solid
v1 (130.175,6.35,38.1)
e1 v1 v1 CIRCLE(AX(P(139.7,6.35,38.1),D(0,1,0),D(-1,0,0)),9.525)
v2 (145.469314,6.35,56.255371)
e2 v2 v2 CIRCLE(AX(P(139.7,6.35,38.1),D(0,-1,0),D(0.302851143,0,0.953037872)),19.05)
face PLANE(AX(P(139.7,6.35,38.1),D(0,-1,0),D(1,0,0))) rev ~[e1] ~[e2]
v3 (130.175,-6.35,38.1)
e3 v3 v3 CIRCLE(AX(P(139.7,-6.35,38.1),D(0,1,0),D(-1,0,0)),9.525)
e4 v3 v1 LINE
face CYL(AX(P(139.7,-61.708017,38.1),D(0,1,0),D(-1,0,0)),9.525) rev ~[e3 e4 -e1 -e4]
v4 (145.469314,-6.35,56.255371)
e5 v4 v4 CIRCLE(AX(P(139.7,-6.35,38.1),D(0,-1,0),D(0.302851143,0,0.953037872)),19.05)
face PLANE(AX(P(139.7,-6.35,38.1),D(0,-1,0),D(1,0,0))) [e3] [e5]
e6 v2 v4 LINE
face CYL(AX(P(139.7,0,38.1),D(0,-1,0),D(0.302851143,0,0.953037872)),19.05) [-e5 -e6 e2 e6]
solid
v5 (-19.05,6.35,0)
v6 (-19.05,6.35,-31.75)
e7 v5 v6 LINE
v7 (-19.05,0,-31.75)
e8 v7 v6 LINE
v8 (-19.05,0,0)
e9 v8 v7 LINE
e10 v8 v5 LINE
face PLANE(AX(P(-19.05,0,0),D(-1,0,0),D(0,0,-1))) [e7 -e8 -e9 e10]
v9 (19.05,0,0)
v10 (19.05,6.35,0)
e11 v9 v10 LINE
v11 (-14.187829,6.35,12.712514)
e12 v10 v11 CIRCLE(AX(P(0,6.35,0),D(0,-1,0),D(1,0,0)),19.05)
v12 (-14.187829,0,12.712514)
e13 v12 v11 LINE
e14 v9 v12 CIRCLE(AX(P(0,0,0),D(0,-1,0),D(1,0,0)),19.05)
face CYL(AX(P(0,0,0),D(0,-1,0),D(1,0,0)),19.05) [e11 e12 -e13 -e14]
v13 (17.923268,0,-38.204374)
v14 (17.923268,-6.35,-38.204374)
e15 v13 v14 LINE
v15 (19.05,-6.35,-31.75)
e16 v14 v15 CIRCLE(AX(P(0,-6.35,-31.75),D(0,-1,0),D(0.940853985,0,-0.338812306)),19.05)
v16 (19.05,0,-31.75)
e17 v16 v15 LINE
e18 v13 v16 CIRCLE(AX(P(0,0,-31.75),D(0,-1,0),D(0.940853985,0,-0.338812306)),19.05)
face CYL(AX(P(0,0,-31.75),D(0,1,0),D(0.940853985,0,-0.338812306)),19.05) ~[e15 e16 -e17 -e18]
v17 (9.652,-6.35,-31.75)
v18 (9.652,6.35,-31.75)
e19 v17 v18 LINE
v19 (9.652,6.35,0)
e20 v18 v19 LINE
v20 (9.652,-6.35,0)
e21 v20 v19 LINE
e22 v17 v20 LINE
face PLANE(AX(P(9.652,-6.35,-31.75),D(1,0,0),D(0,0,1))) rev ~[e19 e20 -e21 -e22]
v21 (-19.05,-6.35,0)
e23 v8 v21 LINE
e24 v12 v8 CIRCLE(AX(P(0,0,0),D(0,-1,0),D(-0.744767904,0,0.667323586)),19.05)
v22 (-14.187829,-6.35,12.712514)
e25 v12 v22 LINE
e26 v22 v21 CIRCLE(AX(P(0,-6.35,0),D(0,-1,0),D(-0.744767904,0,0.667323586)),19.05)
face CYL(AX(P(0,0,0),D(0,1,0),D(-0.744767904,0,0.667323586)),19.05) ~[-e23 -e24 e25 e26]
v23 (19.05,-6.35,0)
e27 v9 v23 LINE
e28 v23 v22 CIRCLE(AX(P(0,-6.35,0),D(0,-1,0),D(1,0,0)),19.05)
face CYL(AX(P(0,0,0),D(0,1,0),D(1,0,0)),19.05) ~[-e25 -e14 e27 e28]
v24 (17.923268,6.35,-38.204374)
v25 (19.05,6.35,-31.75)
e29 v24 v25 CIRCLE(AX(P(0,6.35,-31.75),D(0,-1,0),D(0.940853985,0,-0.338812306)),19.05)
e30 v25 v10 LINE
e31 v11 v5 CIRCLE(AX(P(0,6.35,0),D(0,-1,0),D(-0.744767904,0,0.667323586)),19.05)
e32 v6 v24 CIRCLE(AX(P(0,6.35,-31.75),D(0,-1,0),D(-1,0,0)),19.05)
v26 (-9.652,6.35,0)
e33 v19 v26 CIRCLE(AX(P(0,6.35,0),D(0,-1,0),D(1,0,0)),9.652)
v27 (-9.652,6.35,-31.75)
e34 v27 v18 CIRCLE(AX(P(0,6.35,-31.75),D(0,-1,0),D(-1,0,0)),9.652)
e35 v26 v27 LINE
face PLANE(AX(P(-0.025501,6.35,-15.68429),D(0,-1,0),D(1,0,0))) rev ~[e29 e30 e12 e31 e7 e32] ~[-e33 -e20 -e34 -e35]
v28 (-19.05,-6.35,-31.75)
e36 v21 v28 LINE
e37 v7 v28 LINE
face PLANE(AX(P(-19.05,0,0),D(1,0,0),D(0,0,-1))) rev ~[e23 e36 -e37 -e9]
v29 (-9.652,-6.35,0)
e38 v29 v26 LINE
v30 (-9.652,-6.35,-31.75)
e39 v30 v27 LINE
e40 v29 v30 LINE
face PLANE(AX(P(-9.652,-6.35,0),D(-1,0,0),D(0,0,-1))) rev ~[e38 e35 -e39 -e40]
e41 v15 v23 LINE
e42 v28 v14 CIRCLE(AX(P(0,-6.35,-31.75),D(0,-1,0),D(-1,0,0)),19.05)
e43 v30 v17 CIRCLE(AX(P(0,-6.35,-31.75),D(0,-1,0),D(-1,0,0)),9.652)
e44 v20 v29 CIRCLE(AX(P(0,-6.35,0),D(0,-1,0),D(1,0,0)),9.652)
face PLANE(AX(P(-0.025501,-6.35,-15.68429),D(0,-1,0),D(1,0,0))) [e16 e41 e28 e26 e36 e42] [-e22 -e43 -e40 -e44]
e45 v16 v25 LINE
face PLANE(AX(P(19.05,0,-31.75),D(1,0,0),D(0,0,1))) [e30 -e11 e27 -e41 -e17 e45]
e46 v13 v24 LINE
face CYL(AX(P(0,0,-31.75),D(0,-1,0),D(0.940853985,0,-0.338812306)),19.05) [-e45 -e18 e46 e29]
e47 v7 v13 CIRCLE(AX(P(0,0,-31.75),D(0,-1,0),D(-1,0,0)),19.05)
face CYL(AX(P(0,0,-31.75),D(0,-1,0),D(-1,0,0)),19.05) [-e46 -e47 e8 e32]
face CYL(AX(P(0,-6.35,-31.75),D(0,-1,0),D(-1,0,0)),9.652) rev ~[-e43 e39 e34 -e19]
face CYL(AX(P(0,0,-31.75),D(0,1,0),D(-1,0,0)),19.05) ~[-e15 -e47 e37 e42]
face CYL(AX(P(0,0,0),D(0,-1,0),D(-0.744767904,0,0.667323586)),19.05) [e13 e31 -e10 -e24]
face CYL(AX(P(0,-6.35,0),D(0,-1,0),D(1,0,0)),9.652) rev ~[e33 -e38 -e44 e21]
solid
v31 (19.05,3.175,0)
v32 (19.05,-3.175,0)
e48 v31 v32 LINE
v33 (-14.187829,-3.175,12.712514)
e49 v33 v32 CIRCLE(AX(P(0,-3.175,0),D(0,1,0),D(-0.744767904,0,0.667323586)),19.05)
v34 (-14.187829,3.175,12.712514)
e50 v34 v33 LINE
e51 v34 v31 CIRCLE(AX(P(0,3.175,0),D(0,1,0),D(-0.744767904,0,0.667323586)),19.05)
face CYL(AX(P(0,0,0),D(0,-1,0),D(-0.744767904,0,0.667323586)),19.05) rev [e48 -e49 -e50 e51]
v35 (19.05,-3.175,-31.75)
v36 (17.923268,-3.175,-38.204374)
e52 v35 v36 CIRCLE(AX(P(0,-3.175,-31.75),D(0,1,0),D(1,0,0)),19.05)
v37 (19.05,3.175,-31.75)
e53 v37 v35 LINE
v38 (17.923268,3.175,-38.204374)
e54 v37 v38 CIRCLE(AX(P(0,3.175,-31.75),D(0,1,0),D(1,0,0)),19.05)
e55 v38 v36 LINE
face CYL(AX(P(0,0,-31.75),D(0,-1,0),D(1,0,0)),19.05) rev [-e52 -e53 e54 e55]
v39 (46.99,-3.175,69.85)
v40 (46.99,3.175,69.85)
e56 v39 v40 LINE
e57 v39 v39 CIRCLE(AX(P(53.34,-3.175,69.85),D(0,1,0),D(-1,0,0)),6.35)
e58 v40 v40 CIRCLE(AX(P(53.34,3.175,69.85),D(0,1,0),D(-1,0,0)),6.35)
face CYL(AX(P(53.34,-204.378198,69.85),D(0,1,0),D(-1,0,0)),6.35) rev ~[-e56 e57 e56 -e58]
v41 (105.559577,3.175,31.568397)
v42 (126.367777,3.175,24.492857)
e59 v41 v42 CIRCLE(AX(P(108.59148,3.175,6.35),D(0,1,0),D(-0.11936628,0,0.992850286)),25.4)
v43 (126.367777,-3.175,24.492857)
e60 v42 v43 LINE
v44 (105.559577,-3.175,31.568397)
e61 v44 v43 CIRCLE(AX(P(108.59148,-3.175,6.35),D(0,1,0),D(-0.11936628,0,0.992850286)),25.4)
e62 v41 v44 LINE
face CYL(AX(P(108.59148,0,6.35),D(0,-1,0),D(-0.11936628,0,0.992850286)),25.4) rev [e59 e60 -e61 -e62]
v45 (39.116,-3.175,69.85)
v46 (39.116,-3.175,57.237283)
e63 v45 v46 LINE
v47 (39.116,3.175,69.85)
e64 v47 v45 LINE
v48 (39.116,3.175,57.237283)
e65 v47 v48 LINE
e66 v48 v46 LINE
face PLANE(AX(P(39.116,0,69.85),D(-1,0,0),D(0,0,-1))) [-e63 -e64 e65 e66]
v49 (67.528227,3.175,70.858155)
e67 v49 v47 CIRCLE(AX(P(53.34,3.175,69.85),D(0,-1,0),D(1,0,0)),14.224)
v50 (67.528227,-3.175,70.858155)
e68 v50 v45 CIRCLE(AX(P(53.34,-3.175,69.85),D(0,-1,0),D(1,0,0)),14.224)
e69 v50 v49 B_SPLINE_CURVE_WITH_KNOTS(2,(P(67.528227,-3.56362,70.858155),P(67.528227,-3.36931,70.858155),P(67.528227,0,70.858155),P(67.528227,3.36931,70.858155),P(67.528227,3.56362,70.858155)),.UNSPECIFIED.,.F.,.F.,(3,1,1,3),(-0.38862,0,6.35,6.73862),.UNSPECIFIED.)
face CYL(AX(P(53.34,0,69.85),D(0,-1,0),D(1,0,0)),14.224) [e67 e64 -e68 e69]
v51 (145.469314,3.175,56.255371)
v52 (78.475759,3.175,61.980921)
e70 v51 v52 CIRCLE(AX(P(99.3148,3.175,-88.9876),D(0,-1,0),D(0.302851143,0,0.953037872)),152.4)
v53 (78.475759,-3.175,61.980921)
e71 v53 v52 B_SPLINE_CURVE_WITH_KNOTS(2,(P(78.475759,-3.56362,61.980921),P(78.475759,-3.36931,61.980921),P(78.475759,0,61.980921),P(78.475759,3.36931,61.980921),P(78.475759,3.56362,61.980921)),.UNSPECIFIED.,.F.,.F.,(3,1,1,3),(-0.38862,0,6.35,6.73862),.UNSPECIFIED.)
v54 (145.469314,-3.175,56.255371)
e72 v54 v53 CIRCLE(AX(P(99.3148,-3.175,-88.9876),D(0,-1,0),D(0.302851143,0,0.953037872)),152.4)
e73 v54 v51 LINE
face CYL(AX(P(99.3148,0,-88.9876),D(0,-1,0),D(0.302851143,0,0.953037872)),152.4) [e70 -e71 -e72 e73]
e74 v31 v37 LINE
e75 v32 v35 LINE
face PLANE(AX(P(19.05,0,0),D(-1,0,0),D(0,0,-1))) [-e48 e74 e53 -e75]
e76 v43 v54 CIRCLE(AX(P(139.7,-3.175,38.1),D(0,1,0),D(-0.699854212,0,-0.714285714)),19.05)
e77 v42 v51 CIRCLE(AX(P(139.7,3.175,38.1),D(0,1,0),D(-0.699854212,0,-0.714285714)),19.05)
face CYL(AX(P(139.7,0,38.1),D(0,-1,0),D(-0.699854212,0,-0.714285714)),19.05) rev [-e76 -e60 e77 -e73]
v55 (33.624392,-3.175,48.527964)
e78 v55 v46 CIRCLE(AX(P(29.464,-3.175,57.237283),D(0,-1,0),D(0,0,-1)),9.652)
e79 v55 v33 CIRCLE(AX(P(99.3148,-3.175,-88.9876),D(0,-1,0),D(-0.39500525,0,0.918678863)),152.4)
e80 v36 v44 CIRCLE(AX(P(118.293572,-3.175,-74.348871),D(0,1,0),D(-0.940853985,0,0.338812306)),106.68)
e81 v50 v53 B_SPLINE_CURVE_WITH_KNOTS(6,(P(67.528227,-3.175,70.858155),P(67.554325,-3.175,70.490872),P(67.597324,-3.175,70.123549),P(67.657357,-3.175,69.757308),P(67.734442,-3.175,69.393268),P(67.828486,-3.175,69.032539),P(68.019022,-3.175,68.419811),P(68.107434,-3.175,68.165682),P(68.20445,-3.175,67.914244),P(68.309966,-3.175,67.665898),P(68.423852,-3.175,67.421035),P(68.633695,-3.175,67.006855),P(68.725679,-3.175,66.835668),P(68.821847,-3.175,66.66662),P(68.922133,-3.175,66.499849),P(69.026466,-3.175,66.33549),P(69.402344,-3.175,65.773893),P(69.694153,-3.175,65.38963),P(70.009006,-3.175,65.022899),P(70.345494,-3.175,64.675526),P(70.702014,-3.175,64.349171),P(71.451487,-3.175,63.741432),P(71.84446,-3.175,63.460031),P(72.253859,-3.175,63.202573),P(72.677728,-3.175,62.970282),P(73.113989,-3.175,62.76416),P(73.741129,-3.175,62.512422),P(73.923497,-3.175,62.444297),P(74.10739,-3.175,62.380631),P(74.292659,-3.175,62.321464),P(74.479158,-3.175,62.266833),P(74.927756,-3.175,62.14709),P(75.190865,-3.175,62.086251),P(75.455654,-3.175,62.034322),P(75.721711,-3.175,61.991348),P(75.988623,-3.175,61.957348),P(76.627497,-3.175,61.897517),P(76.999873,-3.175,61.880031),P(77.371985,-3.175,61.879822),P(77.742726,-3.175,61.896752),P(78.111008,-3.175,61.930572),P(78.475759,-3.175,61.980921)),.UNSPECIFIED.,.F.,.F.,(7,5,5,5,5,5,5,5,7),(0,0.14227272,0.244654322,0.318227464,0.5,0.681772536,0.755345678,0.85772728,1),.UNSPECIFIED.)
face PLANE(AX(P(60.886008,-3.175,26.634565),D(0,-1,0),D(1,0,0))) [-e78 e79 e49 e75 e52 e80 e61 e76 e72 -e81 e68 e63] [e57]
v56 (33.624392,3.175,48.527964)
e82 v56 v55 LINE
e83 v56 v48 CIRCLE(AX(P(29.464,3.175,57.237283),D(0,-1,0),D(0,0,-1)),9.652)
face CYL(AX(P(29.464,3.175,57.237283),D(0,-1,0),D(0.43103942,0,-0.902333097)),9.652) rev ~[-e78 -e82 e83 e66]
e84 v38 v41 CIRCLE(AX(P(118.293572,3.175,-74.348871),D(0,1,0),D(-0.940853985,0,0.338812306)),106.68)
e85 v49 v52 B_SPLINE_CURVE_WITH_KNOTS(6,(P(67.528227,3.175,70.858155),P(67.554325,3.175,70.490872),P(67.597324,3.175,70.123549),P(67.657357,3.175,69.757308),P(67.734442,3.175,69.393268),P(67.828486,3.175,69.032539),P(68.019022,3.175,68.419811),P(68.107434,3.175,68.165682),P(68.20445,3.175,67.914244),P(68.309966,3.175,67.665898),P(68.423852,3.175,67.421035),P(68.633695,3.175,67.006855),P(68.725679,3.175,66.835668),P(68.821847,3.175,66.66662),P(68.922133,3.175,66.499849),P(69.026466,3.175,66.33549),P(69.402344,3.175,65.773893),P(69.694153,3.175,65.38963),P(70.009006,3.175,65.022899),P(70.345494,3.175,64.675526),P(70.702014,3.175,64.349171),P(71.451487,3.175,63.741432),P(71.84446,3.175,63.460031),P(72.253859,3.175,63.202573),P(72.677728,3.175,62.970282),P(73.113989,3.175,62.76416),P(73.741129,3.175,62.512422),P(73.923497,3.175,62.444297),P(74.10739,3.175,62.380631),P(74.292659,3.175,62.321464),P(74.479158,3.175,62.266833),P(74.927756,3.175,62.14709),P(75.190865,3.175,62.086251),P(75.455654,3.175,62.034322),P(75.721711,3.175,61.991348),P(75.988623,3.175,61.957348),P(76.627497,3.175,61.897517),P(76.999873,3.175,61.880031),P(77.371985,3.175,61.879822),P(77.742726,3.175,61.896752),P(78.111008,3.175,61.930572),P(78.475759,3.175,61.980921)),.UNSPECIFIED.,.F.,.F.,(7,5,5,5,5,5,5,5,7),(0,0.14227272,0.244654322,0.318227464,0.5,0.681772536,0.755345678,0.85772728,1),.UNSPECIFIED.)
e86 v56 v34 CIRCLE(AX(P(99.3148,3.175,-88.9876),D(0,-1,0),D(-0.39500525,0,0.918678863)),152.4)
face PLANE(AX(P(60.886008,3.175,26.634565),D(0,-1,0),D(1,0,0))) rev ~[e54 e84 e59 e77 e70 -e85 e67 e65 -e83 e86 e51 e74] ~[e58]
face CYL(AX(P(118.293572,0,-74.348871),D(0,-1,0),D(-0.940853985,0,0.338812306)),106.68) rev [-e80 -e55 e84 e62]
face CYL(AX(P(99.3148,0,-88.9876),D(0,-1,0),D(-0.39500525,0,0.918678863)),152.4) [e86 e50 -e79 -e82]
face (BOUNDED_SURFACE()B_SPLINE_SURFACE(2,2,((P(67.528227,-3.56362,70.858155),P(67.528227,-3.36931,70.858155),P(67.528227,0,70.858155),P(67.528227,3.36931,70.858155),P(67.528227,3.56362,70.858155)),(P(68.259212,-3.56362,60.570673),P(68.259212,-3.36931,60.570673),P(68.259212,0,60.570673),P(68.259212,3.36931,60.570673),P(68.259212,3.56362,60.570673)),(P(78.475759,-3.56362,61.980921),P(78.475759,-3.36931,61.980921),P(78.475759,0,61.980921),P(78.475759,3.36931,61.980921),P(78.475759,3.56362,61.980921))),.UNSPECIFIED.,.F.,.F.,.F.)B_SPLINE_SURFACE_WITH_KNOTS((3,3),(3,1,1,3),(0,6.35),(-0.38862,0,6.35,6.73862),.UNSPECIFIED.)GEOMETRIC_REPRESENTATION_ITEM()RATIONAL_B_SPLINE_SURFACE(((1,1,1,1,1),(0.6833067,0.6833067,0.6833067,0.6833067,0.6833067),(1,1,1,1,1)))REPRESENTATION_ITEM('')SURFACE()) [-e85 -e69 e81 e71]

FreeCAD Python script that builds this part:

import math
import FreeCAD as App
import Part
import Sketcher
from FreeCAD import Vector
Q = App.Units.Quantity


def edges_at(feature, points):
    """Names of the edges that pass closest to the given points."""
    edges = feature.Shape.Edges
    near = lambda p: min(range(len(edges)), key=lambda i: edges[i].distToShape(Part.Vertex(*p))[0])
    return sorted({f"Edge{near(p) + 1}" for p in points})

doc = App.newDocument("Part")
body = doc.addObject("PartDesign::Body", "Body")

sketch1 = doc.addObject("Sketcher::SketchObject", "Sketch")
body.addObject(sketch1)
sketch1.AttachmentSupport = (doc.XZ_Plane, [""])
sketch1.MapMode = "FlatFace"
sketch1.addGeometry(Part.LineSegment(Vector(19, -32, 0), Vector(19, 0, 0)), False)
sketch1.addGeometry(Part.ArcOfCircle(Part.Circle(Vector(0, 0, 0), Vector(0, 0, 1), 19), math.radians(0), math.radians(138)), False)
sketch1.addGeometry(Part.ArcOfCircle(Part.Circle(Vector(0, 0, 0), Vector(0, 0, 1), 19), math.radians(138), math.radians(180)), False)
sketch1.addGeometry(Part.LineSegment(Vector(-19, 0, 0), Vector(-19, -32, 0)), False)
sketch1.addGeometry(Part.ArcOfCircle(Part.Circle(Vector(0, -32, 0), Vector(0, 0, 1), 19), math.radians(180), math.radians(340)), False)
sketch1.addGeometry(Part.ArcOfCircle(Part.Circle(Vector(0, -32, 0), Vector(0, 0, 1), 19), math.radians(-19.8), math.radians(0)), False)
sketch1.addConstraint(Sketcher.Constraint("Tangent", 0, 2, 1, 1))
sketch1.addConstraint(Sketcher.Constraint("Tangent", 1, 2, 2, 1))
sketch1.addConstraint(Sketcher.Constraint("Tangent", 2, 2, 3, 1))
sketch1.addConstraint(Sketcher.Constraint("Tangent", 3, 2, 4, 1))
sketch1.addConstraint(Sketcher.Constraint("Tangent", 4, 2, 5, 1))
sketch1.addConstraint(Sketcher.Constraint("Tangent", 5, 2, 0, 1))
sketch1.addConstraint(Sketcher.Constraint("Vertical", 0))
sketch1.addConstraint(Sketcher.Constraint("Vertical", 3))
sketch1.addConstraint(Sketcher.Constraint("Coincident", 1, 3, -1, 1))
sketch1.addConstraint(Sketcher.Constraint("Equal", 1, 2))
sketch1.addConstraint(Sketcher.Constraint("Equal", 2, 4))
sketch1.addConstraint(Sketcher.Constraint("Radius", 1, Q("0.75 in")))
sketch1.addConstraint(Sketcher.Constraint("DistanceY", 0, 1, 0, 2, Q("1.25 in")))
sketch1.addConstraint(Sketcher.Constraint("DistanceX", 1, 2, -1, 1, Q("14.187829 mm")))
sketch1.addConstraint(Sketcher.Constraint("DistanceX", -1, 1, 4, 2, Q("17.923268 mm")))
pad1 = doc.addObject("PartDesign::Pad", "Pad")
body.addObject(pad1)
pad1.Profile = sketch1
pad1.Length = Q("0.5 in")
pad1.Midplane = True

sketch2 = doc.addObject("Sketcher::SketchObject", "Sketch001")
body.addObject(sketch2)
sketch2.AttachmentSupport = (doc.XZ_Plane, [""])
sketch2.MapMode = "FlatFace"
sketch2.AttachmentOffset = App.Placement(Vector(0, 0, 0.25 * 25.4), App.Rotation())
sketch2.addGeometry(Part.LineSegment(Vector(10, -32, 0), Vector(10, 0, 0)), False)
sketch2.addGeometry(Part.ArcOfCircle(Part.Circle(Vector(0, 0, 0), Vector(0, 0, 1), 10), math.radians(0), math.radians(180)), False)
sketch2.addGeometry(Part.LineSegment(Vector(-10, 0, 0), Vector(-10, -32, 0)), False)
sketch2.addGeometry(Part.ArcOfCircle(Part.Circle(Vector(0, -32, 0), Vector(0, 0, 1), 10), math.radians(180), math.radians(360)), False)
sketch2.addConstraint(Sketcher.Constraint("Tangent", 0, 2, 1, 1))
sketch2.addConstraint(Sketcher.Constraint("Tangent", 1, 2, 2, 1))
sketch2.addConstraint(Sketcher.Constraint("Tangent", 2, 2, 3, 1))
sketch2.addConstraint(Sketcher.Constraint("Tangent", 3, 2, 0, 1))
sketch2.addConstraint(Sketcher.Constraint("Vertical", 0))
sketch2.addConstraint(Sketcher.Constraint("Vertical", 2))
sketch2.addConstraint(Sketcher.Constraint("Coincident", 1, 3, -1, 1))
sketch2.addConstraint(Sketcher.Constraint("Radius", 1, Q("0.38 in")))
sketch2.addConstraint(Sketcher.Constraint("DistanceY", 0, 1, 0, 2, Q("1.25 in")))
pocket1 = doc.addObject("PartDesign::Pocket", "Pocket")
body.addObject(pocket1)
pocket1.Profile = sketch2
pocket1.Type = "ThroughAll"
body2 = doc.addObject("PartDesign::Body", "Body001")

sketch3 = doc.addObject("Sketcher::SketchObject", "Sketch002")
body2.addObject(sketch3)
sketch3.AttachmentSupport = (doc.getObject("XZ_Plane001"), [""])
sketch3.MapMode = "FlatFace"
sketch3.addGeometry(Part.Circle(Vector(140, 38, 0), Vector(0, 0, 1), 19), False)
sketch3.addConstraint(Sketcher.Constraint("Diameter", 0, Q("1.5 in")))
sketch3.addConstraint(Sketcher.Constraint("DistanceX", -1, 1, 0, 3, Q("5.5 in")))
sketch3.addConstraint(Sketcher.Constraint("DistanceY", -1, 1, 0, 3, Q("1.5 in")))
pad2 = doc.addObject("PartDesign::Pad", "Pad001")
body2.addObject(pad2)
pad2.Profile = sketch3
pad2.Length = Q("0.5 in")
pad2.Midplane = True

sketch4 = doc.addObject("Sketcher::SketchObject", "Sketch003")
body2.addObject(sketch4)
sketch4.AttachmentSupport = (doc.getObject("XZ_Plane001"), [""])
sketch4.MapMode = "FlatFace"
sketch4.AttachmentOffset = App.Placement(Vector(0, 0, 0.25 * 25.4), App.Rotation())
sketch4.addGeometry(Part.Circle(Vector(140, 38, 0), Vector(0, 0, 1), 10), False)
sketch4.addConstraint(Sketcher.Constraint("Diameter", 0, Q("0.75 in")))
sketch4.addConstraint(Sketcher.Constraint("DistanceX", -1, 1, 0, 3, Q("5.5 in")))
sketch4.addConstraint(Sketcher.Constraint("DistanceY", -1, 1, 0, 3, Q("1.5 in")))
doc.recompute()
hole = doc.addObject("PartDesign::Hole", "Hole")
body2.addObject(hole)
hole.Profile = sketch4
hole.ThreadType = "None"
hole.Diameter = Q("0.75 in")
hole.DepthType = "ThroughAll"
body3 = doc.addObject("PartDesign::Body", "Body002")

sketch5 = doc.addObject("Sketcher::SketchObject", "Sketch004")
body3.addObject(sketch5)
sketch5.AttachmentSupport = (doc.getObject("XZ_Plane002"), [""])
sketch5.MapMode = "FlatFace"
sketch5.addGeometry(Part.ArcOfCircle(Part.Circle(Vector(53, 70, 0), Vector(0, 0, 1), 14), math.radians(0), math.radians(180)), False)
sketch5.addGeometry(Part.LineSegment(Vector(39, 70, 0), Vector(39, 51, 0)), False)
sketch5.addGeometry(Part.ArcOfCircle(Part.Circle(Vector(99, -89, 0), Vector(0, 0, 1), 152), math.radians(113), math.radians(138)), False)
sketch5.addGeometry(Part.ArcOfCircle(Part.Circle(Vector(0, 0, 0), Vector(0, 0, 1), 19), math.radians(0), math.radians(138)), False)
sketch5.addGeometry(Part.LineSegment(Vector(19, 0, 0), Vector(19, -32, 0)), False)
sketch5.addGeometry(Part.ArcOfCircle(Part.Circle(Vector(0, -32, 0), Vector(0, 0, 1), 19), math.radians(-19.8), math.radians(0)), False)
sketch5.addGeometry(Part.ArcOfCircle(Part.Circle(Vector(118, -74, 0), Vector(0, 0, 1), 107), math.radians(97), math.radians(160)), False)
sketch5.addGeometry(Part.ArcOfCircle(Part.Circle(Vector(109, 6, 0), Vector(0, 0, 1), 25), math.radians(46), math.radians(97)), False)
sketch5.addGeometry(Part.ArcOfCircle(Part.Circle(Vector(140, 38, 0), Vector(0, 0, 1), 19), math.radians(72), math.radians(226)), False)
sketch5.addGeometry(Part.ArcOfCircle(Part.Circle(Vector(99, -89, 0), Vector(0, 0, 1), 152), math.radians(72), math.radians(102)), False)
sketch5.addGeometry(Part.LineSegment(Vector(68, 60, 0), Vector(68, 70, 0)), False)
sketch5.addConstraint(Sketcher.Constraint("Tangent", 0, 2, 1, 1))
sketch5.addConstraint(Sketcher.Constraint("Coincident", 1, 2, 2, 1))
sketch5.addConstraint(Sketcher.Constraint("Tangent", 2, 2, 3, 2))
sketch5.addConstraint(Sketcher.Constraint("Tangent", 3, 1, 4, 1))
sketch5.addConstraint(Sketcher.Constraint("Tangent", 4, 2, 5, 2))
sketch5.addConstraint(Sketcher.Constraint("Tangent", 5, 1, 6, 2))
sketch5.addConstraint(Sketcher.Constraint("Tangent", 6, 1, 7, 2))
sketch5.addConstraint(Sketcher.Constraint("Tangent", 7, 1, 8, 2))
sketch5.addConstraint(Sketcher.Constraint("Tangent", 8, 1, 9, 1))
sketch5.addConstraint(Sketcher.Constraint("Coincident", 9, 2, 10, 1))
sketch5.addConstraint(Sketcher.Constraint("Tangent", 10, 2, 0, 1))
sketch5.addConstraint(Sketcher.Constraint("Vertical", 1))
sketch5.addConstraint(Sketcher.Constraint("Vertical", 4))
sketch5.addConstraint(Sketcher.Constraint("Vertical", 10))
sketch5.addConstraint(Sketcher.Constraint("Coincident", 3, 3, -1, 1))
sketch5.addConstraint(Sketcher.Constraint("Coincident", 9, 3, 2, 3))
sketch5.addConstraint(Sketcher.Constraint("Equal", 3, 5))
sketch5.addConstraint(Sketcher.Constraint("Equal", 5, 8))
sketch5.addConstraint(Sketcher.Constraint("Equal", 2, 9))
sketch5.addConstraint(Sketcher.Constraint("Radius", 2, Q("6 in")))
sketch5.addConstraint(Sketcher.Constraint("Radius", 7, Q("1 in")))
sketch5.addConstraint(Sketcher.Constraint("Radius", 6, Q("4.2 in")))
sketch5.addConstraint(Sketcher.Constraint("Radius", 0, Q("0.56 in")))
sketch5.addConstraint(Sketcher.Constraint("Radius", 3, Q("0.75 in")))
sketch5.addConstraint(Sketcher.Constraint("DistanceY", 5, 3, 0, 3, Q("4 in")))
sketch5.addConstraint(Sketcher.Constraint("DistanceY", 4, 2, 4, 1, Q("1.25 in")))
sketch5.addConstraint(Sketcher.Constraint("DistanceX", -1, 1, 0, 3, Q("2.1 in")))
sketch5.addConstraint(Sketcher.Constraint("DistanceX", -1, 1, 8, 3, Q("5.5 in")))
sketch5.addConstraint(Sketcher.Constraint("DistanceY", -1, 1, 8, 3, Q("1.5 in")))
sketch5.addConstraint(Sketcher.Constraint("DistanceY", 7, 3, 0, 3, Q("2.5 in")))
pad3 = doc.addObject("PartDesign::Pad", "Pad002")
body3.addObject(pad3)
pad3.Profile = sketch5
pad3.Length = Q("0.25 in")
pad3.Midplane = True
doc.recompute()

fillet = doc.addObject("PartDesign::Fillet", "Fillet")
body3.addObject(fillet)
fillet.Base = (pad3, edges_at(pad3, [(67.564, 0, 60.068), (39.116, 0, 51.019)]))
fillet.Radius = Q("0.38 in")

sketch6 = doc.addObject("Sketcher::SketchObject", "Sketch005")
body3.addObject(sketch6)
sketch6.AttachmentSupport = (doc.getObject("XZ_Plane002"), [""])
sketch6.MapMode = "FlatFace"
sketch6.AttachmentOffset = App.Placement(Vector(0, 0, 0.125 * 25.4), App.Rotation())
sketch6.addGeometry(Part.Circle(Vector(53, 70, 0), Vector(0, 0, 1), 6), False)
sketch6.addConstraint(Sketcher.Constraint("Diameter", 0, Q("0.5 in")))
sketch6.addConstraint(Sketcher.Constraint("DistanceX", -1, 1, 0, 3, Q("2.1 in")))
sketch6.addConstraint(Sketcher.Constraint("DistanceY", -1, 1, 0, 3, Q("2.75 in")))
doc.recompute()
hole2 = doc.addObject("PartDesign::Hole", "Hole001")
body3.addObject(hole2)
hole2.Profile = sketch6
hole2.ThreadType = "None"
hole2.Diameter = Q("0.5 in")
hole2.DepthType = "ThroughAll"

doc.recompute()
